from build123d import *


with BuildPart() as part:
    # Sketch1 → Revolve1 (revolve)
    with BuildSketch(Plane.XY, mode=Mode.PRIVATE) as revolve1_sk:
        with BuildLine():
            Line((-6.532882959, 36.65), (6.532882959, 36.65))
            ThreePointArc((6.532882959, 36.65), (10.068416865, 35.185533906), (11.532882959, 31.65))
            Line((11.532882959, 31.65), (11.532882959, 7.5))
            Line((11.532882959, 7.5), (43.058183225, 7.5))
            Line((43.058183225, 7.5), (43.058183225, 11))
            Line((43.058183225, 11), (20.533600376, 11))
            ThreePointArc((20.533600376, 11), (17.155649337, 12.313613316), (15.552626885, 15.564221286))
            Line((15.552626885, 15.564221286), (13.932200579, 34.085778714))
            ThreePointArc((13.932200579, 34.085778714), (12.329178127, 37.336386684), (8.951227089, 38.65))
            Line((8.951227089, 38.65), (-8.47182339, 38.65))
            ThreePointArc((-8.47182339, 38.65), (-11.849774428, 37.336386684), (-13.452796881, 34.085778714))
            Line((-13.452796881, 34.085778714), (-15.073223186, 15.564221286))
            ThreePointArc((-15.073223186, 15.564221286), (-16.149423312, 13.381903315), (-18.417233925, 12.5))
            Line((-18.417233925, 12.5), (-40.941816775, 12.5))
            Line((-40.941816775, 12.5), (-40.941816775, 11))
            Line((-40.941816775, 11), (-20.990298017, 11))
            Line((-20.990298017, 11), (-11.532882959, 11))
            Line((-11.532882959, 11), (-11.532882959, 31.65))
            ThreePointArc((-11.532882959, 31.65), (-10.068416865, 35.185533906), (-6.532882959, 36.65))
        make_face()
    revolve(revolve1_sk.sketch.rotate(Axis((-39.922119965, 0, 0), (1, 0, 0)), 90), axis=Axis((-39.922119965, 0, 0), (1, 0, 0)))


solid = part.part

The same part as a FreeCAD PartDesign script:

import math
import FreeCAD as App
import Part
import Sketcher
from FreeCAD import Vector
Q = App.Units.Quantity

doc = App.newDocument("Part")
body = doc.addObject("PartDesign::Body", "Body")

sketch1 = body.newObject("Sketcher::SketchObject", "Sketch")
sketch1.AttachmentSupport = (doc.getObject("XY_Plane"), [""])
sketch1.MapMode = "FlatFace"
sketch1.addGeometry([
    Part.LineSegment(Vector(-6.5, 36.6, 0), Vector(6.5, 36.6, 0)),
    Part.ArcOfCircle(Part.Circle(Vector(6.5, 31.6, 0), Vector(0, 0, 1), 5), math.radians(0), math.radians(90)),
    Part.LineSegment(Vector(11.5, 31.6, 0), Vector(11.5, 7.5, 0)),
    Part.LineSegment(Vector(11.5, 7.5, 0), Vector(43.1, 7.5, 0)),
    Part.LineSegment(Vector(43.1, 7.5, 0), Vector(43.1, 11, 0)),
    Part.LineSegment(Vector(43.1, 11, 0), Vector(20.5, 11, 0)),
    Part.ArcOfCircle(Part.Circle(Vector(20.5, 16, 0), Vector(0, 0, 1), 5), math.radians(-175), math.radians(-90)),
    Part.LineSegment(Vector(15.6, 15.6, 0), Vector(13.9, 34.1, 0)),
    Part.ArcOfCircle(Part.Circle(Vector(9, 33.7, 0), Vector(0, 0, 1), 5), math.radians(5), math.radians(90)),
    Part.LineSegment(Vector(9, 38.6, 0), Vector(-8.5, 38.6, 0)),
    Part.ArcOfCircle(Part.Circle(Vector(-8.5, 33.6, 0), Vector(0, 0, 1), 5), math.radians(90), math.radians(175)),
    Part.LineSegment(Vector(-13.5, 34.1, 0), Vector(-15.1, 15.6, 0)),
    Part.ArcOfCircle(Part.Circle(Vector(-18.4, 15.9, 0), Vector(0, 0, 1), 3.4), math.radians(-90), math.radians(-5)),
    Part.LineSegment(Vector(-18.4, 12.5, 0), Vector(-40.9, 12.5, 0)),
    Part.LineSegment(Vector(-40.9, 12.5, 0), Vector(-40.9, 11, 0)),
    Part.LineSegment(Vector(-40.9, 11, 0), Vector(-11.5, 11, 0)),
    Part.LineSegment(Vector(-11.5, 11, 0), Vector(-11.5, 31.6, 0)),
    Part.ArcOfCircle(Part.Circle(Vector(-6.5, 31.6, 0), Vector(0, 0, 1), 5), math.radians(90), math.radians(180)),
], False)
sketch1.addConstraint([
    Sketcher.Constraint("Tangent", 0, 2, 1, 2),
    Sketcher.Constraint("Tangent", 1, 1, 2, 1),
    Sketcher.Constraint("Coincident", 2, 2, 3, 1),
    Sketcher.Constraint("Coincident", 3, 2, 4, 1),
    Sketcher.Constraint("Coincident", 4, 2, 5, 1),
    Sketcher.Constraint("Tangent", 5, 2, 6, 2),
    Sketcher.Constraint("Tangent", 6, 1, 7, 1),
    Sketcher.Constraint("Tangent", 7, 2, 8, 1),
    Sketcher.Constraint("Tangent", 8, 2, 9, 1),
    Sketcher.Constraint("Tangent", 9, 2, 10, 1),
    Sketcher.Constraint("Tangent", 10, 2, 11, 1),
    Sketcher.Constraint("Tangent", 11, 2, 12, 2),
    Sketcher.Constraint("Tangent", 12, 1, 13, 1),
    Sketcher.Constraint("Coincident", 13, 2, 14, 1),
    Sketcher.Constraint("Coincident", 14, 2, 15, 1),
    Sketcher.Constraint("Coincident", 15, 2, 16, 1),
    Sketcher.Constraint("Tangent", 16, 2, 17, 2),
    Sketcher.Constraint("Tangent", 17, 1, 0, 1),
    Sketcher.Constraint("Horizontal", 0),
    Sketcher.Constraint("Vertical", 2),
    Sketcher.Constraint("Horizontal", 3),
    Sketcher.Constraint("Vertical", 4),
    Sketcher.Constraint("Horizontal", 5),
    Sketcher.Constraint("Horizontal", 9),
    Sketcher.Constraint("Horizontal", 13),
    Sketcher.Constraint("Vertical", 14),
    Sketcher.Constraint("Horizontal", 15),
    Sketcher.Constraint("Vertical", 16),
    Sketcher.Constraint("Equal", 1, 6),
    Sketcher.Constraint("Equal", 6, 8),
    Sketcher.Constraint("Equal", 8, 10),
    Sketcher.Constraint("Equal", 10, 17),
    Sketcher.Constraint("Horizontal", 7, 2, 10, 2),
    Sketcher.Constraint("Horizontal", 6, 1, 11, 2),
    Sketcher.Constraint("Horizontal", 5, 2, 14, 2),
    Sketcher.Constraint("Equal", 5, 13),
    Sketcher.Constraint("Radius", 1, Q("5 mm")),
    Sketcher.Constraint("Angle", 7, Q("95 deg")),
    Sketcher.Constraint("DistanceY", 4, 1, 4, 2, Q("3.5 mm")),
    Sketcher.Constraint("DistanceY", 14, 2, 14, 1, Q("1.5 mm")),
    Sketcher.Constraint("DistanceY", -1, 1, 6, 3, Q("16 mm")),
    Sketcher.Constraint("DistanceY", 1, 3, 8, 3, Q("2 mm")),
    Sketcher.Constraint("DistanceY", 2, 2, 2, 1, Q("24.15 mm")),
    Sketcher.Constraint("DistanceX", 3, 1, 3, 2, Q("31.5253 mm")),
    Sketcher.Constraint("DistanceX", 9, 2, 9, 1, Q("17.42305 mm")),
    Sketcher.Constraint("DistanceX", -1, 1, 6, 3, Q("20.5336 mm")),
    Sketcher.Constraint("DistanceX", 0, 1, 0, 2, Q("13.065766 mm")),
    Sketcher.Constraint("DistanceX", 5, 2, 5, 1, Q("22.524583 mm")),
])
revolution = body.newObject("PartDesign::Revolution", "Revolution")
revolution.Profile = sketch1
revolution.ReferenceAxis = (sketch1, ["H_Axis"])
revolution.Angle = 360

doc.recompute()
